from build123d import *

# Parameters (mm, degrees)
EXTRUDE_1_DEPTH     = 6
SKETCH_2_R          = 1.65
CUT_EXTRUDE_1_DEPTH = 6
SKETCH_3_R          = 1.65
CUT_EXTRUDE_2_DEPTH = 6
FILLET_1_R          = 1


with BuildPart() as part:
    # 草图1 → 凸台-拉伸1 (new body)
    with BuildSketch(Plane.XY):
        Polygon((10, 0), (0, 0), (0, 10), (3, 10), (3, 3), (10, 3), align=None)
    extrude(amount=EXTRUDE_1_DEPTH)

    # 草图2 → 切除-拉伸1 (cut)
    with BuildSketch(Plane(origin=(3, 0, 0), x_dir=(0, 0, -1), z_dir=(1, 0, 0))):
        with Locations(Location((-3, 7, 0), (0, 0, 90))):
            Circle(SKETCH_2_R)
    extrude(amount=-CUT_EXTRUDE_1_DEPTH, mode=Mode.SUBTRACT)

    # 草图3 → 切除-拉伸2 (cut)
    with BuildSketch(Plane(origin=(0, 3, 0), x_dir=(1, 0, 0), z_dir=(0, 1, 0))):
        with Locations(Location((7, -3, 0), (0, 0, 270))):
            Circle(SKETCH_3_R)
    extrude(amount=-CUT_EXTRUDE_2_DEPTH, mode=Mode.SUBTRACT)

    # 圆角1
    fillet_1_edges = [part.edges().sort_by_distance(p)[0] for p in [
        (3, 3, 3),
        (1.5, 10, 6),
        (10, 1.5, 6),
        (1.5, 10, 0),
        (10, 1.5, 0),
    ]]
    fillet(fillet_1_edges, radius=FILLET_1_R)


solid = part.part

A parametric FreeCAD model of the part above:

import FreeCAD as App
import Part
import Sketcher
from FreeCAD import Vector
Q = App.Units.Quantity


def edges_at(feature, points):
    """Names of the edges that pass closest to the given points."""
    edges = feature.Shape.Edges
    near = lambda p: min(range(len(edges)), key=lambda i: edges[i].distToShape(Part.Vertex(*p))[0])
    return sorted({f"Edge{near(p) + 1}" for p in points})

doc = App.newDocument("Part")
body = doc.addObject("PartDesign::Body", "Body")

# Sketch on XY plane
sketch1 = doc.addObject("Sketcher::SketchObject", "Sketch")
body.addObject(sketch1)
sketch1.AttachmentSupport = (doc.XY_Plane, [""])
sketch1.MapMode = "FlatFace"
sketch1.addGeometry(Part.LineSegment(Vector(0, 0, 0), Vector(10, 0, 0)), False)
sketch1.addGeometry(Part.LineSegment(Vector(10, 0, 0), Vector(10, 3, 0)), False)
sketch1.addGeometry(Part.LineSegment(Vector(10, 3, 0), Vector(3, 3, 0)), False)
sketch1.addGeometry(Part.LineSegment(Vector(3, 3, 0), Vector(3, 10, 0)), False)
sketch1.addGeometry(Part.LineSegment(Vector(3, 10, 0), Vector(0, 10, 0)), False)
sketch1.addGeometry(Part.LineSegment(Vector(0, 10, 0), Vector(0, 0, 0)), False)
sketch1.addConstraint(Sketcher.Constraint("Coincident", 0, 2, 1, 1))
sketch1.addConstraint(Sketcher.Constraint("Coincident", 1, 2, 2, 1))
sketch1.addConstraint(Sketcher.Constraint("Coincident", 2, 2, 3, 1))
sketch1.addConstraint(Sketcher.Constraint("Coincident", 3, 2, 4, 1))
sketch1.addConstraint(Sketcher.Constraint("Coincident", 4, 2, 5, 1))
sketch1.addConstraint(Sketcher.Constraint("Coincident", 5, 2, 0, 1))
sketch1.addConstraint(Sketcher.Constraint("Horizontal", 0))
sketch1.addConstraint(Sketcher.Constraint("Vertical", 1))
sketch1.addConstraint(Sketcher.Constraint("Horizontal", 2))
sketch1.addConstraint(Sketcher.Constraint("Vertical", 3))
sketch1.addConstraint(Sketcher.Constraint("Horizontal", 4))
sketch1.addConstraint(Sketcher.Constraint("Vertical", 5))
sketch1.addConstraint(Sketcher.Constraint("Coincident", 5, 2, -1, 1))
sketch1.addConstraint(Sketcher.Constraint("Equal", 4, 1))
sketch1.addConstraint(Sketcher.Constraint("Equal", 2, 3))
sketch1.addConstraint(Sketcher.Constraint("DistanceX", 0, 1, 0, 2, Q("10 mm")))
sketch1.addConstraint(Sketcher.Constraint("DistanceX", 2, 2, 2, 1, Q("7 mm")))
pad1 = doc.addObject("PartDesign::Pad", "Pad")
body.addObject(pad1)
pad1.Profile = sketch1
pad1.Length = 6

# Sketch on YZ plane
sketch2 = doc.addObject("Sketcher::SketchObject", "Sketch001")
body.addObject(sketch2)
sketch2.AttachmentSupport = (doc.YZ_Plane, [""])
sketch2.MapMode = "FlatFace"
sketch2.AttachmentOffset = App.Placement(Vector(0, 0, 3), App.Rotation())
sketch2.addGeometry(Part.Circle(Vector(7, 3, 0), Vector(0, 0, 1), 1.65), False)
sketch2.addConstraint(Sketcher.Constraint("Diameter", 0, Q("3.3 mm")))
sketch2.addConstraint(Sketcher.Constraint("DistanceX", -1, 1, 0, 3, Q("7 mm")))
sketch2.addConstraint(Sketcher.Constraint("DistanceY", -1, 1, 0, 3, Q("3 mm")))
pocket1 = doc.addObject("PartDesign::Pocket", "Pocket")
body.addObject(pocket1)
pocket1.Profile = sketch2
pocket1.Length = 6

# Sketch on XZ plane
sketch3 = doc.addObject("Sketcher::SketchObject", "Sketch002")
body.addObject(sketch3)
sketch3.AttachmentSupport = (doc.XZ_Plane, [""])
sketch3.MapMode = "FlatFace"
sketch3.AttachmentOffset = App.Placement(Vector(0, 0, -3), App.Rotation())
sketch3.addGeometry(Part.Circle(Vector(7, 3, 0), Vector(0, 0, 1), 1.65), False)
sketch3.addConstraint(Sketcher.Constraint("Diameter", 0, Q("3.3 mm")))
sketch3.addConstraint(Sketcher.Constraint("DistanceX", -1, 1, 0, 3, Q("7 mm")))
sketch3.addConstraint(Sketcher.Constraint("DistanceY", -1, 1, 0, 3, Q("3 mm")))
pocket2 = doc.addObject("PartDesign::Pocket", "Pocket001")
body.addObject(pocket2)
pocket2.Profile = sketch3
pocket2.Length = 6
pocket2.Reversed = True
doc.recompute()

fillet = doc.addObject("PartDesign::Fillet", "Fillet")
body.addObject(fillet)
fillet.Base = (pocket2, edges_at(pocket2, [
    (3, 3, 3),
    (1.5, 10, 6),
    (10, 1.5, 6),
    (1.5, 10, 0),
    (10, 1.5, 0),
]))
fillet.Radius = 1

doc.recompute()
